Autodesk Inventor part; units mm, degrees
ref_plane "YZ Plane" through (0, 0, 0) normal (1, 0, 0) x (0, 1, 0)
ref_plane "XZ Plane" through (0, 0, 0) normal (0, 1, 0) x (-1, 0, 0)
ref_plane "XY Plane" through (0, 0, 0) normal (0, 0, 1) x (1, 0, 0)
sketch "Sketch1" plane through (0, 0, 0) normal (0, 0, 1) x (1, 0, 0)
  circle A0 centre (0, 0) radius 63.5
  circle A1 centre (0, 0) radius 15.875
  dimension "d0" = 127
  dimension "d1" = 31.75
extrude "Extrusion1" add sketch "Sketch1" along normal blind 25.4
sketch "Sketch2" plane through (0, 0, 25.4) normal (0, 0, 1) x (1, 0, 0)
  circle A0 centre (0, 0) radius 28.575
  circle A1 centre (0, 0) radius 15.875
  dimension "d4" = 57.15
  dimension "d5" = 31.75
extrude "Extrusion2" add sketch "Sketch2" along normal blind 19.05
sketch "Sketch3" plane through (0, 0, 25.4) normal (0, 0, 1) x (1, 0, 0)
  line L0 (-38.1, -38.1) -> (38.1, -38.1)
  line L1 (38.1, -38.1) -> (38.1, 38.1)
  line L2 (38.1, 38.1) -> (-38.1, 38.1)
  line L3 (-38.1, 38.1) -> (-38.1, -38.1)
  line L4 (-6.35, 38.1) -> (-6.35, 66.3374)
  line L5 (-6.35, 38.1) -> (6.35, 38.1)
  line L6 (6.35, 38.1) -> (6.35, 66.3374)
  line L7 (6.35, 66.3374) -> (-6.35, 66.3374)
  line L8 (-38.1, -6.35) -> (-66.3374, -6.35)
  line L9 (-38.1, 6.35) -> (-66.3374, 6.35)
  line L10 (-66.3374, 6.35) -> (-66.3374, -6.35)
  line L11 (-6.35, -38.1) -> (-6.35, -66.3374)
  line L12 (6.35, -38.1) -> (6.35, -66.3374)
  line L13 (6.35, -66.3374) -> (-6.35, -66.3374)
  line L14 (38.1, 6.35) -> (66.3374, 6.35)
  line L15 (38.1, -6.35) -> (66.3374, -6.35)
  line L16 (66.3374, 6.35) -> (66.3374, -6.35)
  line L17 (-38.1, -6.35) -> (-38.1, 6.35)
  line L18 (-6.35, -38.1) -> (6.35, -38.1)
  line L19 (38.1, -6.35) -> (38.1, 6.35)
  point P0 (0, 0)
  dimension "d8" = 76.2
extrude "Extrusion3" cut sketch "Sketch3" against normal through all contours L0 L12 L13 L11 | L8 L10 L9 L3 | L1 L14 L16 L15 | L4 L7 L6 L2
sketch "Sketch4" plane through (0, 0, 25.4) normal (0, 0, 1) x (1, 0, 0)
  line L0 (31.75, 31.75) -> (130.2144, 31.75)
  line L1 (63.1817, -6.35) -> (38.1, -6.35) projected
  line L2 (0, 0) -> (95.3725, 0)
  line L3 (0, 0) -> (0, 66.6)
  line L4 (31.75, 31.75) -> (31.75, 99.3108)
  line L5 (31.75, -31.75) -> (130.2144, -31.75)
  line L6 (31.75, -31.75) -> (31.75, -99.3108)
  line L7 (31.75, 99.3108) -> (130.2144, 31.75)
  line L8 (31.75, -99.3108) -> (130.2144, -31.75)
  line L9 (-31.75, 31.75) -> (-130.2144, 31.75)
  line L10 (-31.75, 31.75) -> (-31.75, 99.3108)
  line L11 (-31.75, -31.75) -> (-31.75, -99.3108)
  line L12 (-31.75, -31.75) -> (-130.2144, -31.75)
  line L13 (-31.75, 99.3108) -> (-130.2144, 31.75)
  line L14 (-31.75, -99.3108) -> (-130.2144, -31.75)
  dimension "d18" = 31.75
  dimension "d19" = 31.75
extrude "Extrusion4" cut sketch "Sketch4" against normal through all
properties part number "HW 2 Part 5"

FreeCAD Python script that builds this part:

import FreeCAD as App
import Part
import Sketcher

V = App.Vector
Q = App.Units.Quantity


def add_polygon(sketch, points):
    """Adds a closed chain of lines whose ends are joined by coincident constraints."""
    first, n = sketch.GeometryCount, len(points)
    for a, b in zip(points, points[1:] + points[:1]):
        sketch.addGeometry(Part.LineSegment(App.Vector(*a, 0), App.Vector(*b, 0)), False)
    for i in range(n):
        sketch.addConstraint(Sketcher.Constraint("Coincident", first + i, 2, first + (i + 1) % n, 1))

doc = App.newDocument("Part")
body = doc.addObject("PartDesign::Body", "Body")

# Sketch on XY plane
sketch1 = body.newObject("Sketcher::SketchObject", "Sketch")
sketch1.AttachmentSupport = (doc.getObject("XY_Plane"), [""])
sketch1.MapMode = "FlatFace"
sketch1.addGeometry([
    Part.Circle(V(0, 0, 0), V(0, 0, 1), 64),
    Part.Circle(V(0, 0, 0), V(0, 0, 1), 16),
], False)
sketch1.addConstraint([
    Sketcher.Constraint("Coincident", 0, 3, -1, 1),
    Sketcher.Constraint("Coincident", 1, 3, -1, 1),
    Sketcher.Constraint("Diameter", 0, Q("5 in")),
    Sketcher.Constraint("Diameter", 1, Q("1.25 in")),
])
pad1 = body.newObject("PartDesign::Pad", "Pad")
pad1.Profile = sketch1
pad1.Length = Q("1 in")

# Sketch on XY plane
sketch2 = body.newObject("Sketcher::SketchObject", "Sketch001")
sketch2.AttachmentSupport = (doc.getObject("XY_Plane"), [""])
sketch2.MapMode = "FlatFace"
sketch2.AttachmentOffset = App.Placement(V(0, 0, 1 * 25.4), App.Rotation())
sketch2.addGeometry([
    Part.Circle(V(0, 0, 0), V(0, 0, 1), 29),
    Part.Circle(V(0, 0, 0), V(0, 0, 1), 16),
], False)
sketch2.addConstraint([
    Sketcher.Constraint("Coincident", 0, 3, -1, 1),
    Sketcher.Constraint("Coincident", 1, 3, -1, 1),
    Sketcher.Constraint("Diameter", 0, Q("2.25 in")),
    Sketcher.Constraint("Diameter", 1, Q("1.25 in")),
])
pad2 = body.newObject("PartDesign::Pad", "Pad001")
pad2.Profile = sketch2
pad2.Length = Q("0.75 in")

# Sketch on XY plane
sketch3 = body.newObject("Sketcher::SketchObject", "Sketch002")
sketch3.AttachmentSupport = (doc.getObject("XY_Plane"), [""])
sketch3.MapMode = "FlatFace"
sketch3.AttachmentOffset = App.Placement(V(0, 0, 1 * 25.4), App.Rotation())
add_polygon(sketch3, [(6, -38), (-6, -38), (-6, -66), (6, -66)])  # lines 0-3
add_polygon(sketch3, [(-66, -6), (-38, -6), (-38, 6), (-66, 6)])  # lines 4-7
add_polygon(sketch3, [(38, 6), (38, -6), (66, -6), (66, 6)])  # lines 8-11
add_polygon(sketch3, [(-6, 66), (-6, 38), (6, 38), (6, 66)])  # lines 12-15
sketch3.addConstraint([
    Sketcher.Constraint("Horizontal", 0),
    Sketcher.Constraint("Vertical", 1),
    Sketcher.Constraint("Horizontal", 2),
    Sketcher.Constraint("Vertical", 3),
    Sketcher.Constraint("Horizontal", 4),
    Sketcher.Constraint("Vertical", 5),
    Sketcher.Constraint("Horizontal", 6),
    Sketcher.Constraint("Vertical", 7),
    Sketcher.Constraint("Vertical", 8),
    Sketcher.Constraint("Horizontal", 9),
    Sketcher.Constraint("Vertical", 10),
    Sketcher.Constraint("Horizontal", 11),
    Sketcher.Constraint("Vertical", 12),
    Sketcher.Constraint("Horizontal", 13),
    Sketcher.Constraint("Vertical", 14),
    Sketcher.Constraint("Horizontal", 15),
    Sketcher.Constraint("Symmetric", 5, 2, 8, 2, -1, 1),
    Sketcher.Constraint("Symmetric", 7, 2, 10, 2, -1, 1),
    Sketcher.Constraint("Symmetric", 3, 2, 12, 2, -1, 1),
    Sketcher.Constraint("Symmetric", 1, 2, 14, 2, -1, 1),
    Sketcher.Constraint("Horizontal", 7, 2, 8, 2),
    Sketcher.Constraint("Vertical", 1, 2, 12, 2),
    Sketcher.Constraint("Equal", 11, 1),
    Sketcher.Constraint("Equal", 15, 5),
    Sketcher.Constraint("DistanceX", 4, 2, 8, 2, Q("3 in")),
    Sketcher.Constraint("DistanceX", 0, 2, 0, 1, Q("0.5 in")),
    Sketcher.Constraint("DistanceY", 0, 2, -1, 1, Q("1.5 in")),
    Sketcher.Constraint("DistanceX", 4, 1, 4, 2, Q("1.1117 in")),
])
pocket1 = body.newObject("PartDesign::Pocket", "Pocket")
pocket1.Profile = sketch3
pocket1.Type = "ThroughAll"

# Sketch on XY plane
sketch4 = body.newObject("Sketcher::SketchObject", "Sketch003")
sketch4.AttachmentSupport = (doc.getObject("XY_Plane"), [""])
sketch4.MapMode = "FlatFace"
sketch4.AttachmentOffset = App.Placement(V(0, 0, 1 * 25.4), App.Rotation())
add_polygon(sketch4, [(32, 99), (32, 32), (130, 32)])  # lines 0-2
add_polygon(sketch4, [(130, -32), (32, -32), (32, -99)])  # lines 3-5
add_polygon(sketch4, [(-130, 32), (-32, 32), (-32, 99)])  # lines 6-8
add_polygon(sketch4, [(-32, -99), (-32, -32), (-130, -32)])  # lines 9-11
sketch4.addConstraint([
    Sketcher.Constraint("Vertical", 0),
    Sketcher.Constraint("Horizontal", 1),
    Sketcher.Constraint("Horizontal", 3),
    Sketcher.Constraint("Vertical", 4),
    Sketcher.Constraint("Horizontal", 6),
    Sketcher.Constraint("Vertical", 7),
    Sketcher.Constraint("Vertical", 9),
    Sketcher.Constraint("Horizontal", 10),
    Sketcher.Constraint("Symmetric", 3, 2, 6, 2, -1, 1),
    Sketcher.Constraint("Symmetric", 0, 2, 9, 2, -1, 1),
    Sketcher.Constraint("Symmetric", 0, 2, 6, 2, -2),
    Sketcher.Constraint("Parallel", 5, 8),
    Sketcher.Constraint("Parallel", 2, 11),
    Sketcher.Constraint("Horizontal", 2, 2, 7, 2),
    Sketcher.Constraint("Horizontal", 4, 2, 11, 2),
    Sketcher.Constraint("Vertical", 1, 2, 5, 2),
    Sketcher.Constraint("Vertical", 8, 2, 10, 2),
    Sketcher.Constraint("DistanceX", -1, 1, 0, 2, Q("1.25 in")),
    Sketcher.Constraint("DistanceY", -1, 1, 0, 2, Q("1.25 in")),
    Sketcher.Constraint("DistanceX", 1, 1, 1, 2, 98.4644),
    Sketcher.Constraint("DistanceY", 0, 2, 0, 1, 67.5608),
])
pocket2 = body.newObject("PartDesign::Pocket", "Pocket001")
pocket2.Profile = sketch4
pocket2.Type = "ThroughAll"

doc.recompute()
